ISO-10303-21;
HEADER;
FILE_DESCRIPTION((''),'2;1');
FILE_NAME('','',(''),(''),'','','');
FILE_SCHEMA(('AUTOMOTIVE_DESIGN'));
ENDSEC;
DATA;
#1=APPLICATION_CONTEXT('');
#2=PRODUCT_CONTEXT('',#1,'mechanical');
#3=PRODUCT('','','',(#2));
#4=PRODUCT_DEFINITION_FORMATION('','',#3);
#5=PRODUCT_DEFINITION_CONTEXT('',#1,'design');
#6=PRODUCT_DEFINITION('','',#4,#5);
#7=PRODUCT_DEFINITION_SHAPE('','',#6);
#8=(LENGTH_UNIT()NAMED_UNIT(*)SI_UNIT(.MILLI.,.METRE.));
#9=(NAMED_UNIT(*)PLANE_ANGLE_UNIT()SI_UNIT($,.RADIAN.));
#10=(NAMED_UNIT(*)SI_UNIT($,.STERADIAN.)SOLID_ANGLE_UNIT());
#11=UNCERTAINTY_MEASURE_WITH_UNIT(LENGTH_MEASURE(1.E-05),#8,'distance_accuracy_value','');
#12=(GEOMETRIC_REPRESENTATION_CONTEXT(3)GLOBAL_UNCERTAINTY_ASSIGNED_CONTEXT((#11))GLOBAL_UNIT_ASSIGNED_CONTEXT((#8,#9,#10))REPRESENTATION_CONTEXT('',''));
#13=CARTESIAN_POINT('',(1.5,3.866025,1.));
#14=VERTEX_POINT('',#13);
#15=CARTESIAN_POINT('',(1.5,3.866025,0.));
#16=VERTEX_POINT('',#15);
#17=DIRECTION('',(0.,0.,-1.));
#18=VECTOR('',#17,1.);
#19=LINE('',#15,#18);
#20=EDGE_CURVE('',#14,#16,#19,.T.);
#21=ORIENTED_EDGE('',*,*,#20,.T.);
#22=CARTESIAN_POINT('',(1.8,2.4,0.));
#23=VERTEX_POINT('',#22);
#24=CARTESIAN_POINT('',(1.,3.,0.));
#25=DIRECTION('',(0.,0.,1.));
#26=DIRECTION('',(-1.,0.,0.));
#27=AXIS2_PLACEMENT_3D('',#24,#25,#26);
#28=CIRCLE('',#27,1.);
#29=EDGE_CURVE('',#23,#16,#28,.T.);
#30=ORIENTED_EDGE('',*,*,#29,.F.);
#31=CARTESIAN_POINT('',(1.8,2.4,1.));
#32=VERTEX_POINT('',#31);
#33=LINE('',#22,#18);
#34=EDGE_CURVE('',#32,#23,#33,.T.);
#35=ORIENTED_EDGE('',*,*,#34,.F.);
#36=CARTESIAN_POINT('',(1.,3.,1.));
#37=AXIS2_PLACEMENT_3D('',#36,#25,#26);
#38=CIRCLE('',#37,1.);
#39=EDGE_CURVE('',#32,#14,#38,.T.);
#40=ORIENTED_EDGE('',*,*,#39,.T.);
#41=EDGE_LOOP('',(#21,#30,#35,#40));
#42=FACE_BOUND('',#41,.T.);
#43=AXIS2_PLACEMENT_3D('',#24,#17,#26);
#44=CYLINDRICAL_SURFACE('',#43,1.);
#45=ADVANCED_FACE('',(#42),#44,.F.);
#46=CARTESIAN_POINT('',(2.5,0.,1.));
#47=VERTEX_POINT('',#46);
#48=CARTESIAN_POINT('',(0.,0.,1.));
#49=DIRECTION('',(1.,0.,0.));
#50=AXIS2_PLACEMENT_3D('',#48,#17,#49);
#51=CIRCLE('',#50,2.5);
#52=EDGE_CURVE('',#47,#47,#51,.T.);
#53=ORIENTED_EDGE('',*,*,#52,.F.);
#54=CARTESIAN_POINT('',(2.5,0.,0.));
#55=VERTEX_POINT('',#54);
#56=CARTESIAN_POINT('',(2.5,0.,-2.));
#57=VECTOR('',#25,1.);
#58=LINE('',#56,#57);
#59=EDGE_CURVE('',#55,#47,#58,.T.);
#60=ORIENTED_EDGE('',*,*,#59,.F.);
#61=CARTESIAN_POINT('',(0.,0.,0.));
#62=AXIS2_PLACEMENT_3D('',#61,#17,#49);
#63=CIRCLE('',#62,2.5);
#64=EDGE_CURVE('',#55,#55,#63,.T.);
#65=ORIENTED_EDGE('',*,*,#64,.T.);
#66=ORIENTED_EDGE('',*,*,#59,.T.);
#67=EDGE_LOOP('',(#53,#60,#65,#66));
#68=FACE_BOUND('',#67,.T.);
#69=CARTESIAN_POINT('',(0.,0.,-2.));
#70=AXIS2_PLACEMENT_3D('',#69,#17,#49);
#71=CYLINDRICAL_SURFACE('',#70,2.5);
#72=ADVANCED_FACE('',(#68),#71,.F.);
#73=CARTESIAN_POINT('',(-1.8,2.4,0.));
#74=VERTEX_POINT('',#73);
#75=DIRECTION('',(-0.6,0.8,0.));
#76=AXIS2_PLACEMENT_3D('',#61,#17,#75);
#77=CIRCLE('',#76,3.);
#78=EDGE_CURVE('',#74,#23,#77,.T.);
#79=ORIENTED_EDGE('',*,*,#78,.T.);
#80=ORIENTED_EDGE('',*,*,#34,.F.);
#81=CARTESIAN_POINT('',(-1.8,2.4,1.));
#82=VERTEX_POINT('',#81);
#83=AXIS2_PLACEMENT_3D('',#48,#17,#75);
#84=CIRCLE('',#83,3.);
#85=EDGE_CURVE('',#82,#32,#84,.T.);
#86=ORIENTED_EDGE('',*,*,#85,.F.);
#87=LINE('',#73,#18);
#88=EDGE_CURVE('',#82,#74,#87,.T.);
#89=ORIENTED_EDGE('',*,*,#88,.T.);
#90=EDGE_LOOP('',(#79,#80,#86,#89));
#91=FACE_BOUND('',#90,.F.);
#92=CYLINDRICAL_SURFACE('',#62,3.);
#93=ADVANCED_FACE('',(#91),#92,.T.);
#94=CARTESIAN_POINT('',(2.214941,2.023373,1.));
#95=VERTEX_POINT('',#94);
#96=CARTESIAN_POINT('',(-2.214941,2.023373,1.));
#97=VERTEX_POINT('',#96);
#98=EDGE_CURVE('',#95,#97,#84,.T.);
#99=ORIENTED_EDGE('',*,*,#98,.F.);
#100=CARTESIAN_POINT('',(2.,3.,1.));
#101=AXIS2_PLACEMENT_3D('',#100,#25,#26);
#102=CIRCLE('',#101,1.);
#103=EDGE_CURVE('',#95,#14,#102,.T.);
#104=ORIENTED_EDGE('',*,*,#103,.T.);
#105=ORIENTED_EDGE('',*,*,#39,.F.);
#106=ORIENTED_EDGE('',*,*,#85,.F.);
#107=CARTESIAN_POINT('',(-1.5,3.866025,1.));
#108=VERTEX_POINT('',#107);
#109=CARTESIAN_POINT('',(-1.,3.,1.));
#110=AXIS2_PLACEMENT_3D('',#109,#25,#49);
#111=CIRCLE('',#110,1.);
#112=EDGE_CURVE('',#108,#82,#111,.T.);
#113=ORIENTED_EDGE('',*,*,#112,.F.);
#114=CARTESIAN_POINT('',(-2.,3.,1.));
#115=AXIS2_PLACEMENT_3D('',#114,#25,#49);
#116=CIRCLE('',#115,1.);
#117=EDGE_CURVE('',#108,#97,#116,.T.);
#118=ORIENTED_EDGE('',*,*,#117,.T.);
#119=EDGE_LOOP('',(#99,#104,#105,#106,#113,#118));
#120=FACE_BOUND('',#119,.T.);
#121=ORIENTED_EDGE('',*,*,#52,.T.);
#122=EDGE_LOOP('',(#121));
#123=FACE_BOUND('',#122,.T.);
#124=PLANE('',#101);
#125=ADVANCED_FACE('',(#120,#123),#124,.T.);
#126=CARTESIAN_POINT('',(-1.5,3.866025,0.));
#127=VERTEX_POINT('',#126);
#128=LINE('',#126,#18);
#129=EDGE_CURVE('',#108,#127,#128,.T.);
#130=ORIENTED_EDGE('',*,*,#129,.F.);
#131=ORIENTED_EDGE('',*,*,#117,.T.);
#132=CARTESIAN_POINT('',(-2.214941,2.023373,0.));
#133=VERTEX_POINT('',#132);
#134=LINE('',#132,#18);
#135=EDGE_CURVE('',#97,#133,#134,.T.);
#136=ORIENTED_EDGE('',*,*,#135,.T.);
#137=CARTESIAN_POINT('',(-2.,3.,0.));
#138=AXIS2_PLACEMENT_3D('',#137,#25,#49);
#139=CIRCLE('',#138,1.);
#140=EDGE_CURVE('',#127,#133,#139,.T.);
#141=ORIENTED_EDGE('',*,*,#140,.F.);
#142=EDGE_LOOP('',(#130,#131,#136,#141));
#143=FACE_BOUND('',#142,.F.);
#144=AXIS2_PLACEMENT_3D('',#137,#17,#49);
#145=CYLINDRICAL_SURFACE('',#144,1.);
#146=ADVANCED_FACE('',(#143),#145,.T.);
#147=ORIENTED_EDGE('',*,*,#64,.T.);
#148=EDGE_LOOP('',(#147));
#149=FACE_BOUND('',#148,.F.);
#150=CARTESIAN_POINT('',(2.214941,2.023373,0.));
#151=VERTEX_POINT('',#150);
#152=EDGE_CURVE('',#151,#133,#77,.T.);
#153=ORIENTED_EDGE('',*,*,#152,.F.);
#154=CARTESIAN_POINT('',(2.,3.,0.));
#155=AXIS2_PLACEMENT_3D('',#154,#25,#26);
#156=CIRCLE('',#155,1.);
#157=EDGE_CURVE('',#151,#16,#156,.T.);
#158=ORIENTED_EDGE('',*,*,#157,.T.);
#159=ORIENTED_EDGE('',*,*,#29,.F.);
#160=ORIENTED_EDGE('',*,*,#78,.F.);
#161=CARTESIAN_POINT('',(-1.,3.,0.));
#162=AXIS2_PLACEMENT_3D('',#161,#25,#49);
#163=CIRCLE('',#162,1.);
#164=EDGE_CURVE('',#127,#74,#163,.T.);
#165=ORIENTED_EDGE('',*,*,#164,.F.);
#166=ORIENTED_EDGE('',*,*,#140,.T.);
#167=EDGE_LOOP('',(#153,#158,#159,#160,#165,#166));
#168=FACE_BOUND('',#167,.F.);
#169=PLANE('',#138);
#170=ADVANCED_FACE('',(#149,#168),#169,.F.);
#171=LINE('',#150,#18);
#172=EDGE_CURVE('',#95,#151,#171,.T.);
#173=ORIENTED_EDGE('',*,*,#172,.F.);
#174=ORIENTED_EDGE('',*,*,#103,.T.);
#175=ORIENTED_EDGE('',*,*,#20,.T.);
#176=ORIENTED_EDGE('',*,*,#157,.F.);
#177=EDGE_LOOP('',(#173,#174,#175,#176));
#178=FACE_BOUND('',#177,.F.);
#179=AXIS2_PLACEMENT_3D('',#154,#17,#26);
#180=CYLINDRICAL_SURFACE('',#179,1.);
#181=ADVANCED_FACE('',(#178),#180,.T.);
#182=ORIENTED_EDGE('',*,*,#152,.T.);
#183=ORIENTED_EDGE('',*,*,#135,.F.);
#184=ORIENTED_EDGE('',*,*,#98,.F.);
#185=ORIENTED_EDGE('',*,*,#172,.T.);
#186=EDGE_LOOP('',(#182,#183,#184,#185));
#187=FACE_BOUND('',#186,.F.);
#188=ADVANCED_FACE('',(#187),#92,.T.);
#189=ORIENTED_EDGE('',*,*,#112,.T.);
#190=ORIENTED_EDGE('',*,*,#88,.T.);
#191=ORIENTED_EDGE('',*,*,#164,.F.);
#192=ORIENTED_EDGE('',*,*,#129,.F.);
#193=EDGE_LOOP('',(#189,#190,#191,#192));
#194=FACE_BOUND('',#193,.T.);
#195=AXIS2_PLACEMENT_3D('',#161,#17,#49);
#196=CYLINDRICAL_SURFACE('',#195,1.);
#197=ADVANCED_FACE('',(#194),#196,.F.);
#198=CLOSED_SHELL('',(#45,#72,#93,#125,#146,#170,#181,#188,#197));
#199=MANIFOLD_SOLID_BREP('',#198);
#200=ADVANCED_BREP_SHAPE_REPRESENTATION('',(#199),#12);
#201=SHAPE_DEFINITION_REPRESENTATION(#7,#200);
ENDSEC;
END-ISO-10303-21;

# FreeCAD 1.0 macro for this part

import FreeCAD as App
import Part
import Sketcher

V = App.Vector
Q = App.Units.Quantity

doc = App.newDocument("Part")
params = doc.addObject("Spreadsheet::Sheet", "Params")
for row, (alias, value) in enumerate([
    ("sketch1_diameter", "2 mm"),
    ("pad1_length", "1 mm"),
    ("sketch2_diameter", "2 mm"),
    ("pad2_length", "1 mm"),
    ("sketch3_diameter", "2 mm"),
    ("pad3_length", "1 mm"),
    ("sketch4_diameter", "2 mm"),
    ("pad4_length", "1 mm"),
    ("sketch5_diameter", "5 mm"),
    ("pad5_length", "5 mm"),
    ("sketch6_diameter", "6 mm"),
    ("pad6_length", "1 mm"),
], start=1):
    params.set(f"A{row}", alias)
    params.set(f"B{row}", "=" + value)
    params.setAlias(f"B{row}", alias)

body = doc.addObject("PartDesign::Body", "Body")

sketch1 = doc.addObject("Sketcher::SketchObject", "Sketch")
body.addObject(sketch1)
sketch1.AttachmentSupport = (doc.XY_Plane, [""])
sketch1.MapMode = "FlatFace"
sketch1.addGeometry(Part.Circle(V(-7, 0, 0), V(0, 0, 1), 1), False)
sketch1.addConstraint(Sketcher.Constraint("PointOnObject", 0, 3, -1))
sketch1.addConstraint(Sketcher.Constraint("Diameter", 0, Q("2 mm")))
sketch1.addConstraint(Sketcher.Constraint("DistanceX", 0, 3, -1, 1, Q("7 mm")))
sketch1.setExpression("Constraints[1]", "Params.sketch1_diameter")
pad1 = doc.addObject("PartDesign::Pad", "Pad")
body.addObject(pad1)
pad1.Profile = sketch1
pad1.setExpression("Length", "Params.pad1_length")
body2 = doc.addObject("PartDesign::Body", "Body001")

sketch2 = doc.addObject("Sketcher::SketchObject", "Sketch001")
body2.addObject(sketch2)
sketch2.AttachmentSupport = (doc.getObject("XY_Plane001"), [""])
sketch2.MapMode = "FlatFace"
sketch2.addGeometry(Part.Circle(V(-8, 0, 0), V(0, 0, 1), 1), False)
sketch2.addConstraint(Sketcher.Constraint("PointOnObject", 0, 3, -1))
sketch2.addConstraint(Sketcher.Constraint("Diameter", 0, Q("2 mm")))
sketch2.addConstraint(Sketcher.Constraint("DistanceX", 0, 3, -1, 1, Q("8 mm")))
sketch2.setExpression("Constraints[1]", "Params.sketch2_diameter")
pad2 = doc.addObject("PartDesign::Pad", "Pad001")
body2.addObject(pad2)
pad2.Profile = sketch2
pad2.setExpression("Length", "Params.pad2_length")
doc.recompute()

boolean = doc.addObject("PartDesign::Boolean", "Boolean")
body2.addObject(boolean)
boolean.Type = "Cut"
boolean.addObjects([body])
body3 = doc.addObject("PartDesign::Body", "Body002")
doc.recompute()

body2.Placement = App.Placement(V(6, 3, 0), App.Rotation(V(0, 0, 1), 0))
boolean2 = doc.addObject("PartDesign::Boolean", "Boolean001")
body3.addObject(boolean2)
boolean2.Type = "Fuse"
boolean2.addObjects([body2])
body4 = doc.addObject("PartDesign::Body", "Body003")

sketch3 = doc.addObject("Sketcher::SketchObject", "Sketch002")
body4.addObject(sketch3)
sketch3.AttachmentSupport = (doc.getObject("XY_Plane003"), [""])
sketch3.MapMode = "FlatFace"
sketch3.addGeometry(Part.Circle(V(-7, 0, 0), V(0, 0, 1), 1), False)
sketch3.addConstraint(Sketcher.Constraint("PointOnObject", 0, 3, -1))
sketch3.addConstraint(Sketcher.Constraint("Diameter", 0, Q("2 mm")))
sketch3.addConstraint(Sketcher.Constraint("DistanceX", 0, 3, -1, 1, Q("7 mm")))
sketch3.setExpression("Constraints[1]", "Params.sketch3_diameter")
pad3 = doc.addObject("PartDesign::Pad", "Pad002")
body4.addObject(pad3)
pad3.Profile = sketch3
pad3.setExpression("Length", "Params.pad3_length")
body5 = doc.addObject("PartDesign::Body", "Body004")

sketch4 = doc.addObject("Sketcher::SketchObject", "Sketch003")
body5.addObject(sketch4)
sketch4.AttachmentSupport = (doc.getObject("XY_Plane004"), [""])
sketch4.MapMode = "FlatFace"
sketch4.addGeometry(Part.Circle(V(-8, 0, 0), V(0, 0, 1), 1), False)
sketch4.addConstraint(Sketcher.Constraint("PointOnObject", 0, 3, -1))
sketch4.addConstraint(Sketcher.Constraint("Diameter", 0, Q("2 mm")))
sketch4.addConstraint(Sketcher.Constraint("DistanceX", 0, 3, -1, 1, Q("8 mm")))
sketch4.setExpression("Constraints[1]", "Params.sketch4_diameter")
pad4 = doc.addObject("PartDesign::Pad", "Pad003")
body5.addObject(pad4)
pad4.Profile = sketch4
pad4.setExpression("Length", "Params.pad4_length")
doc.recompute()

boolean3 = doc.addObject("PartDesign::Boolean", "Boolean002")
body5.addObject(boolean3)
boolean3.Type = "Cut"
boolean3.addObjects([body4])
body6 = doc.addObject("PartDesign::Body", "Body005")
doc.recompute()

body5.Placement = App.Placement(V(-6, 3, 0), App.Rotation(V(0, 0, 1), 180))
boolean4 = doc.addObject("PartDesign::Boolean", "Boolean003")
body6.addObject(boolean4)
boolean4.Type = "Fuse"
boolean4.addObjects([body5])
body7 = doc.addObject("PartDesign::Body", "Body006")

sketch5 = doc.addObject("Sketcher::SketchObject", "Sketch004")
body7.addObject(sketch5)
sketch5.AttachmentSupport = (doc.getObject("XY_Plane006"), [""])
sketch5.MapMode = "FlatFace"
sketch5.AttachmentOffset = App.Placement(V(0, 0, -2), App.Rotation())
sketch5.addGeometry(Part.Circle(V(0, 0, 0), V(0, 0, 1), 2.5), False)
sketch5.addConstraint(Sketcher.Constraint("Coincident", 0, 3, -1, 1))
sketch5.addConstraint(Sketcher.Constraint("Diameter", 0, Q("5 mm")))
sketch5.setExpression("Constraints[1]", "Params.sketch5_diameter")
pad5 = doc.addObject("PartDesign::Pad", "Pad004")
body7.addObject(pad5)
pad5.Profile = sketch5
pad5.setExpression("Length", "Params.pad5_length")
body8 = doc.addObject("PartDesign::Body", "Body007")

sketch6 = doc.addObject("Sketcher::SketchObject", "Sketch005")
body8.addObject(sketch6)
sketch6.AttachmentSupport = (doc.getObject("XY_Plane007"), [""])
sketch6.MapMode = "FlatFace"
sketch6.addGeometry(Part.Circle(V(0, 0, 0), V(0, 0, 1), 3), False)
sketch6.addConstraint(Sketcher.Constraint("Coincident", 0, 3, -1, 1))
sketch6.addConstraint(Sketcher.Constraint("Diameter", 0, Q("6 mm")))
sketch6.setExpression("Constraints[1]", "Params.sketch6_diameter")
pad6 = doc.addObject("PartDesign::Pad", "Pad005")
body8.addObject(pad6)
pad6.Profile = sketch6
pad6.setExpression("Length", "Params.pad6_length")
doc.recompute()

boolean5 = doc.addObject("PartDesign::Boolean", "Boolean004")
body8.addObject(boolean5)
boolean5.Type = "Cut"
boolean5.addObjects([body7])
doc.recompute()

boolean6 = doc.addObject("PartDesign::Boolean", "Boolean005")
body8.addObject(boolean6)
boolean6.Type = "Fuse"
boolean6.addObjects([body3])
doc.recompute()

boolean7 = doc.addObject("PartDesign::Boolean", "Boolean006")
body8.addObject(boolean7)
boolean7.Type = "Fuse"
boolean7.addObjects([body6])

doc.recompute()
